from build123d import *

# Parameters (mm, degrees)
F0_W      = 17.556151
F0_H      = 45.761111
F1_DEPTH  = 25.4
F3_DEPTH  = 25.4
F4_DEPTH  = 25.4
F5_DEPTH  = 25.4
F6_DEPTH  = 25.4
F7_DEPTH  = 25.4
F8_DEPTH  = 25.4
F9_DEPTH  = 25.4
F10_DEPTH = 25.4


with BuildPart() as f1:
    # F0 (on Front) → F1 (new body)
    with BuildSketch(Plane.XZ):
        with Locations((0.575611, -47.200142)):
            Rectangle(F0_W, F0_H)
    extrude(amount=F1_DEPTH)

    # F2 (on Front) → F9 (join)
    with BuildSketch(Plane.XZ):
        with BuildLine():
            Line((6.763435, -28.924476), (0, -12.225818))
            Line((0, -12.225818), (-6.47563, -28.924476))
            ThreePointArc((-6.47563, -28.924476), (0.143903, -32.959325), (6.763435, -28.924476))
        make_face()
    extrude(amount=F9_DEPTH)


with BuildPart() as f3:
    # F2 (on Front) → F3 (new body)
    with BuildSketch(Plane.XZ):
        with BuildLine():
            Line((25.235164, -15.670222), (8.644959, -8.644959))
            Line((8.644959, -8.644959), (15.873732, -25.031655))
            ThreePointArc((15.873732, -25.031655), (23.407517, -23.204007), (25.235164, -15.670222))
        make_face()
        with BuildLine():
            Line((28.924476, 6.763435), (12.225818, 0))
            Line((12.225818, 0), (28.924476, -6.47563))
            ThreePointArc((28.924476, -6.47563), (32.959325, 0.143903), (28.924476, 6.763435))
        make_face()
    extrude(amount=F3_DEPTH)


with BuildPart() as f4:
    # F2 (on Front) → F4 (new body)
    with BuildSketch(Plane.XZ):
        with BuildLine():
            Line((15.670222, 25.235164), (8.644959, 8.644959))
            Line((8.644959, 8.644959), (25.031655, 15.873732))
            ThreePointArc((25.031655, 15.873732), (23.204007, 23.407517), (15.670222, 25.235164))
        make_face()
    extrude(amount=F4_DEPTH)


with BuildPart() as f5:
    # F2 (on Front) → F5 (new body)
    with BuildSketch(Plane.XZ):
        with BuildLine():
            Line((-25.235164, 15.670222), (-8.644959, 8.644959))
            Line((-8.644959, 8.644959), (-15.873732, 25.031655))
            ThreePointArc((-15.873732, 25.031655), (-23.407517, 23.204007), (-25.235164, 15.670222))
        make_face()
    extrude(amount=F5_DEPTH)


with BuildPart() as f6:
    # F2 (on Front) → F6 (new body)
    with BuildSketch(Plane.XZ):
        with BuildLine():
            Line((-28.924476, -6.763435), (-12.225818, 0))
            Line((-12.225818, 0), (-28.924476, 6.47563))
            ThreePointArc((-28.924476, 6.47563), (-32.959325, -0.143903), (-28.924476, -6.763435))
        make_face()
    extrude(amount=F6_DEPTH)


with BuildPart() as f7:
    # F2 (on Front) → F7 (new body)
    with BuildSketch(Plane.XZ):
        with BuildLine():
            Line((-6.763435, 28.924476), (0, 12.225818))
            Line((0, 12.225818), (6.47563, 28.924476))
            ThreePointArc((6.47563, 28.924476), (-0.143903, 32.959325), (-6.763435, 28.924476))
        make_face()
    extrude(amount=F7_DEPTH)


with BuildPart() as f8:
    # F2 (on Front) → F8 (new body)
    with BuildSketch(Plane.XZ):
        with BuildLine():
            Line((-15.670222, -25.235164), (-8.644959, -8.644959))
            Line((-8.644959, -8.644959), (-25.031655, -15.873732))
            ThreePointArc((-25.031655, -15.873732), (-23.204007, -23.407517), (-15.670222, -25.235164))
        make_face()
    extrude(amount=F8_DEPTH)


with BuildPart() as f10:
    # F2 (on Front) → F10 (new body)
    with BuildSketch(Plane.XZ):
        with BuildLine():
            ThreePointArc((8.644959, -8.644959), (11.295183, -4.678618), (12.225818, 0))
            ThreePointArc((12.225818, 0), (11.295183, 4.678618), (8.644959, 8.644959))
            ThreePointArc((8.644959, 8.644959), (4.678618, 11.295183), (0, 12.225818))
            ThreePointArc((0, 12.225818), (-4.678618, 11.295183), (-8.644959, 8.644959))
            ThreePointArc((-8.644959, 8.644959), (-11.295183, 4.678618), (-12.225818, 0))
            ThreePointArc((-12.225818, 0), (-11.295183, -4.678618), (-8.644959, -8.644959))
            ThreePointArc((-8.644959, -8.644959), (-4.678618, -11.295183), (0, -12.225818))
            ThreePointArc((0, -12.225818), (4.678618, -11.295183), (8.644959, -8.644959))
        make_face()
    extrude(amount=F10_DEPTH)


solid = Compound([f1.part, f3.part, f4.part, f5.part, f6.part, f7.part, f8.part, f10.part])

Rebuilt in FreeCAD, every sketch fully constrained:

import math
import FreeCAD as App
import Part
import Sketcher

V = App.Vector
Q = App.Units.Quantity


def add_polygon(sketch, points):
    """Adds a closed chain of lines whose ends are joined by coincident constraints."""
    first, n = sketch.GeometryCount, len(points)
    for a, b in zip(points, points[1:] + points[:1]):
        sketch.addGeometry(Part.LineSegment(App.Vector(*a, 0), App.Vector(*b, 0)), False)
    for i in range(n):
        sketch.addConstraint(Sketcher.Constraint("Coincident", first + i, 2, first + (i + 1) % n, 1))

doc = App.newDocument("Part")
params = doc.addObject("Spreadsheet::Sheet", "Params")
for row, (alias, value) in enumerate([
    ("pad1_length", "1 in"),
    ("pad2_length", "1 in"),
    ("pad3_length", "1 in"),
    ("pad4_length", "1 in"),
    ("pad5_length", "1 in"),
    ("pad6_length", "1 in"),
    ("pad7_length", "1 in"),
    ("pad8_length", "1 in"),
    ("pad9_length", "1 in"),
], start=1):
    params.set(f"A{row}", alias)
    params.set(f"B{row}", "=" + value)
    params.setAlias(f"B{row}", alias)

body = doc.addObject("PartDesign::Body", "Body")

sketch1 = body.newObject("Sketcher::SketchObject", "Sketch")
sketch1.AttachmentSupport = (doc.getObject("XZ_Plane"), [""])
sketch1.MapMode = "FlatFace"
add_polygon(sketch1, [(-8, -24), (-8, -70), (9, -70), (9, -24)])
sketch1.addConstraint([
    Sketcher.Constraint("Vertical", 0),
    Sketcher.Constraint("Horizontal", 1),
    Sketcher.Constraint("Vertical", 2),
    Sketcher.Constraint("Horizontal", 3),
    Sketcher.Constraint("DistanceX", 1, 1, 1, 2, Q("17.556151 mm")),
    Sketcher.Constraint("DistanceY", 0, 2, 0, 1, Q("45.761111 mm")),
    Sketcher.Constraint("DistanceX", 0, 2, -1, 1, Q("8.202464 mm")),
    Sketcher.Constraint("DistanceY", 0, 2, -1, 1, Q("70.080697 mm")),
])
pad1 = body.newObject("PartDesign::Pad", "Pad")
pad1.Profile = sketch1
pad1.setExpression("Length", "Params.pad1_length")

sketch2 = body.newObject("Sketcher::SketchObject", "Sketch001")
sketch2.AttachmentSupport = (doc.getObject("XZ_Plane"), [""])
sketch2.MapMode = "FlatFace"
sketch2.addGeometry([
    Part.LineSegment(V(7, -29, 0), V(0, -12, 0)),
    Part.LineSegment(V(0, -12, 0), V(-6, -29, 0)),
    Part.ArcOfCircle(Part.Circle(V(0, -26, 0), V(0, 0, 1), 7), math.radians(-153), math.radians(-27)),
], False)
sketch2.addConstraint([
    Sketcher.Constraint("Coincident", 0, 2, 1, 1),
    Sketcher.Constraint("Coincident", 1, 2, 2, 1),
    Sketcher.Constraint("Coincident", 2, 2, 0, 1),
    Sketcher.Constraint("PointOnObject", 0, 2, -2),
    Sketcher.Constraint("Horizontal", 1, 2, 2, 2),
    Sketcher.Constraint("Radius", 2, Q("7.447394 mm")),
    Sketcher.Constraint("Distance", 0, Q("18.01636 mm")),
    Sketcher.Constraint("DistanceY", 2, 3, -1, 1, Q("25.511931 mm")),
    Sketcher.Constraint("DistanceX", 1, 2, -1, 1, Q("6.47563 mm")),
    Sketcher.Constraint("DistanceY", 2, 2, 0, 2, Q("16.698658 mm")),
])
pad2 = body.newObject("PartDesign::Pad", "Pad001")
pad2.Profile = sketch2
pad2.setExpression("Length", "Params.pad2_length")
body2 = doc.addObject("PartDesign::Body", "Body001")
body2.AllowCompound = True

sketch3 = body2.newObject("Sketcher::SketchObject", "Sketch002")
sketch3.AttachmentSupport = (doc.getObject("XZ_Plane001"), [""])
sketch3.MapMode = "FlatFace"
sketch3.addGeometry([
    Part.LineSegment(V(25, -16, 0), V(9, -9, 0)),
    Part.LineSegment(V(9, -9, 0), V(16, -25, 0)),
    Part.ArcOfCircle(Part.Circle(V(18, -18, 0), V(0, 0, 1), 7), math.radians(-108), math.radians(18)),
    Part.LineSegment(V(29, 7, 0), V(12, 0, 0)),
    Part.LineSegment(V(12, 0, 0), V(29, -6, 0)),
    Part.ArcOfCircle(Part.Circle(V(26, 0, 0), V(0, 0, 1), 7), math.radians(-63), math.radians(63)),
], False)
sketch3.addConstraint([
    Sketcher.Constraint("Coincident", 0, 2, 1, 1),
    Sketcher.Constraint("Coincident", 1, 2, 2, 1),
    Sketcher.Constraint("Coincident", 2, 2, 0, 1),
    Sketcher.Constraint("Coincident", 3, 2, 4, 1),
    Sketcher.Constraint("Coincident", 4, 2, 5, 1),
    Sketcher.Constraint("Coincident", 5, 2, 3, 1),
    Sketcher.Constraint("Equal", 2, 5),
    Sketcher.Constraint("PointOnObject", 3, 2, -1),
    Sketcher.Constraint("Vertical", 4, 2, 5, 2),
    Sketcher.Constraint("Equal", 0, 3),
    Sketcher.Constraint("Equal", 1, 4),
    Sketcher.Constraint("Radius", 2, Q("7.447394 mm")),
    Sketcher.Constraint("DistanceX", 1, 2, 5, 3, Q("9.638199 mm")),
    Sketcher.Constraint("Distance", 0, Q("18.01636 mm")),
    Sketcher.Constraint("DistanceX", -1, 1, 5, 3, Q("25.511931 mm")),
    Sketcher.Constraint("DistanceX", -1, 1, 0, 2, Q("8.644959 mm")),
    Sketcher.Constraint("DistanceY", 0, 2, -1, 1, Q("8.644959 mm")),
    Sketcher.Constraint("DistanceY", 4, 2, -1, 1, Q("6.47563 mm")),
    Sketcher.Constraint("DistanceY", 0, 2, 5, 3, Q("8.788861 mm")),
    Sketcher.Constraint("DistanceX", 1, 2, 2, 3, Q("2.267682 mm")),
])
pad3 = body2.newObject("PartDesign::Pad", "Pad002")
pad3.Profile = sketch3
pad3.setExpression("Length", "Params.pad3_length")
body3 = doc.addObject("PartDesign::Body", "Body002")

sketch4 = body3.newObject("Sketcher::SketchObject", "Sketch003")
sketch4.AttachmentSupport = (doc.getObject("XZ_Plane002"), [""])
sketch4.MapMode = "FlatFace"
sketch4.addGeometry([
    Part.LineSegment(V(16, 25, 0), V(9, 9, 0)),
    Part.LineSegment(V(9, 9, 0), V(25, 16, 0)),
    Part.ArcOfCircle(Part.Circle(V(18, 18, 0), V(0, 0, 1), 7), math.radians(-18), math.radians(108)),
], False)
sketch4.addConstraint([
    Sketcher.Constraint("Coincident", 0, 2, 1, 1),
    Sketcher.Constraint("Coincident", 1, 2, 2, 1),
    Sketcher.Constraint("Coincident", 2, 2, 0, 1),
    Sketcher.Constraint("Radius", 2, Q("7.447394 mm")),
    Sketcher.Constraint("Distance", 0, Q("18.01636 mm")),
    Sketcher.Constraint("DistanceX", -1, 1, 0, 2, Q("8.644959 mm")),
    Sketcher.Constraint("DistanceY", -1, 1, 0, 2, Q("8.644959 mm")),
    Sketcher.Constraint("DistanceX", 2, 3, 1, 2, Q("7.09375 mm")),
    Sketcher.Constraint("DistanceY", 2, 3, 2, 2, Q("7.09375 mm")),
    Sketcher.Constraint("Distance", 1, Q("17.910303 mm")),
])
pad4 = body3.newObject("PartDesign::Pad", "Pad003")
pad4.Profile = sketch4
pad4.setExpression("Length", "Params.pad4_length")
body4 = doc.addObject("PartDesign::Body", "Body003")

sketch5 = body4.newObject("Sketcher::SketchObject", "Sketch004")
sketch5.AttachmentSupport = (doc.getObject("XZ_Plane003"), [""])
sketch5.MapMode = "FlatFace"
sketch5.addGeometry([
    Part.LineSegment(V(-25, 16, 0), V(-9, 9, 0)),
    Part.LineSegment(V(-9, 9, 0), V(-16, 25, 0)),
    Part.ArcOfCircle(Part.Circle(V(-18, 18, 0), V(0, 0, 1), 7), math.radians(72), math.radians(198)),
], False)
sketch5.addConstraint([
    Sketcher.Constraint("Coincident", 0, 2, 1, 1),
    Sketcher.Constraint("Coincident", 1, 2, 2, 1),
    Sketcher.Constraint("Coincident", 2, 2, 0, 1),
    Sketcher.Constraint("Radius", 2, Q("7.447394 mm")),
    Sketcher.Constraint("Distance", 0, Q("18.01636 mm")),
    Sketcher.Constraint("DistanceX", 0, 2, -1, 1, Q("8.644959 mm")),
    Sketcher.Constraint("DistanceY", -1, 1, 0, 2, Q("8.644959 mm")),
    Sketcher.Constraint("DistanceX", 2, 3, 1, 2, Q("2.267682 mm")),
    Sketcher.Constraint("DistanceX", 2, 2, 2, 3, Q("7.09375 mm")),
    Sketcher.Constraint("Distance", 1, Q("17.910303 mm")),
])
pad5 = body4.newObject("PartDesign::Pad", "Pad004")
pad5.Profile = sketch5
pad5.setExpression("Length", "Params.pad5_length")
body5 = doc.addObject("PartDesign::Body", "Body004")

sketch6 = body5.newObject("Sketcher::SketchObject", "Sketch005")
sketch6.AttachmentSupport = (doc.getObject("XZ_Plane004"), [""])
sketch6.MapMode = "FlatFace"
sketch6.addGeometry([
    Part.LineSegment(V(-29, -7, 0), V(-12, 0, 0)),
    Part.LineSegment(V(-12, 0, 0), V(-29, 6, 0)),
    Part.ArcOfCircle(Part.Circle(V(-26, 0, 0), V(0, 0, 1), 7), math.radians(117), math.radians(243)),
], False)
sketch6.addConstraint([
    Sketcher.Constraint("Coincident", 0, 2, 1, 1),
    Sketcher.Constraint("Coincident", 1, 2, 2, 1),
    Sketcher.Constraint("Coincident", 2, 2, 0, 1),
    Sketcher.Constraint("PointOnObject", 0, 2, -1),
    Sketcher.Constraint("Vertical", 1, 2, 2, 2),
    Sketcher.Constraint("Radius", 2, Q("7.447394 mm")),
    Sketcher.Constraint("Distance", 0, Q("18.01636 mm")),
    Sketcher.Constraint("DistanceX", 2, 3, -1, 1, Q("25.511931 mm")),
    Sketcher.Constraint("DistanceY", -1, 1, 1, 2, Q("6.47563 mm")),
    Sketcher.Constraint("DistanceX", 2, 2, 0, 2, Q("16.698658 mm")),
])
pad6 = body5.newObject("PartDesign::Pad", "Pad005")
pad6.Profile = sketch6
pad6.setExpression("Length", "Params.pad6_length")
body6 = doc.addObject("PartDesign::Body", "Body005")

sketch7 = body6.newObject("Sketcher::SketchObject", "Sketch006")
sketch7.AttachmentSupport = (doc.getObject("XZ_Plane005"), [""])
sketch7.MapMode = "FlatFace"
sketch7.addGeometry([
    Part.LineSegment(V(-7, 29, 0), V(0, 12, 0)),
    Part.LineSegment(V(0, 12, 0), V(6, 29, 0)),
    Part.ArcOfCircle(Part.Circle(V(0, 26, 0), V(0, 0, 1), 7), math.radians(27), math.radians(153)),
], False)
sketch7.addConstraint([
    Sketcher.Constraint("Coincident", 0, 2, 1, 1),
    Sketcher.Constraint("Coincident", 1, 2, 2, 1),
    Sketcher.Constraint("Coincident", 2, 2, 0, 1),
    Sketcher.Constraint("PointOnObject", 0, 2, -2),
    Sketcher.Constraint("Horizontal", 1, 2, 2, 2),
    Sketcher.Constraint("Radius", 2, Q("7.447394 mm")),
    Sketcher.Constraint("Distance", 0, Q("18.01636 mm")),
    Sketcher.Constraint("DistanceY", -1, 1, 2, 3, Q("25.511931 mm")),
    Sketcher.Constraint("DistanceX", -1, 1, 1, 2, Q("6.47563 mm")),
    Sketcher.Constraint("DistanceY", 0, 2, 2, 2, Q("16.698658 mm")),
])
pad7 = body6.newObject("PartDesign::Pad", "Pad006")
pad7.Profile = sketch7
pad7.setExpression("Length", "Params.pad7_length")
body7 = doc.addObject("PartDesign::Body", "Body006")

sketch8 = body7.newObject("Sketcher::SketchObject", "Sketch007")
sketch8.AttachmentSupport = (doc.getObject("XZ_Plane006"), [""])
sketch8.MapMode = "FlatFace"
sketch8.addGeometry([
    Part.LineSegment(V(-16, -25, 0), V(-9, -9, 0)),
    Part.LineSegment(V(-9, -9, 0), V(-25, -16, 0)),
    Part.ArcOfCircle(Part.Circle(V(-18, -18, 0), V(0, 0, 1), 7), math.radians(162), math.radians(288)),
], False)
sketch8.addConstraint([
    Sketcher.Constraint("Coincident", 0, 2, 1, 1),
    Sketcher.Constraint("Coincident", 1, 2, 2, 1),
    Sketcher.Constraint("Coincident", 2, 2, 0, 1),
    Sketcher.Constraint("Radius", 2, Q("7.447394 mm")),
    Sketcher.Constraint("Distance", 0, Q("18.01636 mm")),
    Sketcher.Constraint("DistanceX", 0, 2, -1, 1, Q("8.644959 mm")),
    Sketcher.Constraint("DistanceY", 0, 2, -1, 1, Q("8.644959 mm")),
    Sketcher.Constraint("DistanceX", 1, 2, 2, 3, Q("7.09375 mm")),
    Sketcher.Constraint("DistanceY", 2, 2, 2, 3, Q("7.09375 mm")),
    Sketcher.Constraint("Distance", 1, Q("17.910303 mm")),
])
pad8 = body7.newObject("PartDesign::Pad", "Pad007")
pad8.Profile = sketch8
pad8.setExpression("Length", "Params.pad8_length")
body8 = doc.addObject("PartDesign::Body", "Body007")

sketch9 = body8.newObject("Sketcher::SketchObject", "Sketch008")
sketch9.AttachmentSupport = (doc.getObject("XZ_Plane007"), [""])
sketch9.MapMode = "FlatFace"
sketch9.addGeometry([
    Part.ArcOfCircle(Part.Circle(V(0, 0, 0), V(0, 0, 1), 12), math.radians(-45), math.radians(0)),
    Part.ArcOfCircle(Part.Circle(V(0, 0, 0), V(0, 0, 1), 12), math.radians(0), math.radians(45)),
    Part.ArcOfCircle(Part.Circle(V(0, 0, 0), V(0, 0, 1), 12), math.radians(45), math.radians(90)),
    Part.ArcOfCircle(Part.Circle(V(0, 0, 0), V(0, 0, 1), 12), math.radians(90), math.radians(135)),
    Part.ArcOfCircle(Part.Circle(V(0, 0, 0), V(0, 0, 1), 12), math.radians(135), math.radians(180)),
    Part.ArcOfCircle(Part.Circle(V(0, 0, 0), V(0, 0, 1), 12), math.radians(-180), math.radians(-135)),
    Part.ArcOfCircle(Part.Circle(V(0, 0, 0), V(0, 0, 1), 12), math.radians(-135), math.radians(-90)),
    Part.ArcOfCircle(Part.Circle(V(0, 0, 0), V(0, 0, 1), 12), math.radians(-90), math.radians(-45)),
], False)
sketch9.addConstraint([
    Sketcher.Constraint("Tangent", 0, 2, 1, 1),
    Sketcher.Constraint("Tangent", 1, 2, 2, 1),
    Sketcher.Constraint("Tangent", 2, 2, 3, 1),
    Sketcher.Constraint("Tangent", 3, 2, 4, 1),
    Sketcher.Constraint("Tangent", 4, 2, 5, 1),
    Sketcher.Constraint("Tangent", 5, 2, 6, 1),
    Sketcher.Constraint("Tangent", 6, 2, 7, 1),
    Sketcher.Constraint("Tangent", 7, 2, 0, 1),
    Sketcher.Constraint("Coincident", 0, 3, -1, 1),
    Sketcher.Constraint("Coincident", 2, 3, -1, 1),
    Sketcher.Constraint("Coincident", 4, 3, -1, 1),
    Sketcher.Constraint("Equal", 4, 5),
    Sketcher.Constraint("PointOnObject", 0, 2, -1),
    Sketcher.Constraint("PointOnObject", 2, 2, -2),
    Sketcher.Constraint("PointOnObject", 4, 2, -1),
    Sketcher.Constraint("PointOnObject", 6, 2, -2),
    Sketcher.Constraint("Horizontal", 1, 2, 3, 2),
    Sketcher.Constraint("Horizontal", 5, 2, 7, 2),
    Sketcher.Constraint("Vertical", 3, 2, 5, 2),
    Sketcher.Constraint("Radius", 0, Q("12.22582 mm")),
    Sketcher.Constraint("DistanceX", -1, 1, 1, 2, Q("8.644959 mm")),
])
pad9 = body8.newObject("PartDesign::Pad", "Pad008")
pad9.Profile = sketch9
pad9.setExpression("Length", "Params.pad9_length")

doc.recompute()
